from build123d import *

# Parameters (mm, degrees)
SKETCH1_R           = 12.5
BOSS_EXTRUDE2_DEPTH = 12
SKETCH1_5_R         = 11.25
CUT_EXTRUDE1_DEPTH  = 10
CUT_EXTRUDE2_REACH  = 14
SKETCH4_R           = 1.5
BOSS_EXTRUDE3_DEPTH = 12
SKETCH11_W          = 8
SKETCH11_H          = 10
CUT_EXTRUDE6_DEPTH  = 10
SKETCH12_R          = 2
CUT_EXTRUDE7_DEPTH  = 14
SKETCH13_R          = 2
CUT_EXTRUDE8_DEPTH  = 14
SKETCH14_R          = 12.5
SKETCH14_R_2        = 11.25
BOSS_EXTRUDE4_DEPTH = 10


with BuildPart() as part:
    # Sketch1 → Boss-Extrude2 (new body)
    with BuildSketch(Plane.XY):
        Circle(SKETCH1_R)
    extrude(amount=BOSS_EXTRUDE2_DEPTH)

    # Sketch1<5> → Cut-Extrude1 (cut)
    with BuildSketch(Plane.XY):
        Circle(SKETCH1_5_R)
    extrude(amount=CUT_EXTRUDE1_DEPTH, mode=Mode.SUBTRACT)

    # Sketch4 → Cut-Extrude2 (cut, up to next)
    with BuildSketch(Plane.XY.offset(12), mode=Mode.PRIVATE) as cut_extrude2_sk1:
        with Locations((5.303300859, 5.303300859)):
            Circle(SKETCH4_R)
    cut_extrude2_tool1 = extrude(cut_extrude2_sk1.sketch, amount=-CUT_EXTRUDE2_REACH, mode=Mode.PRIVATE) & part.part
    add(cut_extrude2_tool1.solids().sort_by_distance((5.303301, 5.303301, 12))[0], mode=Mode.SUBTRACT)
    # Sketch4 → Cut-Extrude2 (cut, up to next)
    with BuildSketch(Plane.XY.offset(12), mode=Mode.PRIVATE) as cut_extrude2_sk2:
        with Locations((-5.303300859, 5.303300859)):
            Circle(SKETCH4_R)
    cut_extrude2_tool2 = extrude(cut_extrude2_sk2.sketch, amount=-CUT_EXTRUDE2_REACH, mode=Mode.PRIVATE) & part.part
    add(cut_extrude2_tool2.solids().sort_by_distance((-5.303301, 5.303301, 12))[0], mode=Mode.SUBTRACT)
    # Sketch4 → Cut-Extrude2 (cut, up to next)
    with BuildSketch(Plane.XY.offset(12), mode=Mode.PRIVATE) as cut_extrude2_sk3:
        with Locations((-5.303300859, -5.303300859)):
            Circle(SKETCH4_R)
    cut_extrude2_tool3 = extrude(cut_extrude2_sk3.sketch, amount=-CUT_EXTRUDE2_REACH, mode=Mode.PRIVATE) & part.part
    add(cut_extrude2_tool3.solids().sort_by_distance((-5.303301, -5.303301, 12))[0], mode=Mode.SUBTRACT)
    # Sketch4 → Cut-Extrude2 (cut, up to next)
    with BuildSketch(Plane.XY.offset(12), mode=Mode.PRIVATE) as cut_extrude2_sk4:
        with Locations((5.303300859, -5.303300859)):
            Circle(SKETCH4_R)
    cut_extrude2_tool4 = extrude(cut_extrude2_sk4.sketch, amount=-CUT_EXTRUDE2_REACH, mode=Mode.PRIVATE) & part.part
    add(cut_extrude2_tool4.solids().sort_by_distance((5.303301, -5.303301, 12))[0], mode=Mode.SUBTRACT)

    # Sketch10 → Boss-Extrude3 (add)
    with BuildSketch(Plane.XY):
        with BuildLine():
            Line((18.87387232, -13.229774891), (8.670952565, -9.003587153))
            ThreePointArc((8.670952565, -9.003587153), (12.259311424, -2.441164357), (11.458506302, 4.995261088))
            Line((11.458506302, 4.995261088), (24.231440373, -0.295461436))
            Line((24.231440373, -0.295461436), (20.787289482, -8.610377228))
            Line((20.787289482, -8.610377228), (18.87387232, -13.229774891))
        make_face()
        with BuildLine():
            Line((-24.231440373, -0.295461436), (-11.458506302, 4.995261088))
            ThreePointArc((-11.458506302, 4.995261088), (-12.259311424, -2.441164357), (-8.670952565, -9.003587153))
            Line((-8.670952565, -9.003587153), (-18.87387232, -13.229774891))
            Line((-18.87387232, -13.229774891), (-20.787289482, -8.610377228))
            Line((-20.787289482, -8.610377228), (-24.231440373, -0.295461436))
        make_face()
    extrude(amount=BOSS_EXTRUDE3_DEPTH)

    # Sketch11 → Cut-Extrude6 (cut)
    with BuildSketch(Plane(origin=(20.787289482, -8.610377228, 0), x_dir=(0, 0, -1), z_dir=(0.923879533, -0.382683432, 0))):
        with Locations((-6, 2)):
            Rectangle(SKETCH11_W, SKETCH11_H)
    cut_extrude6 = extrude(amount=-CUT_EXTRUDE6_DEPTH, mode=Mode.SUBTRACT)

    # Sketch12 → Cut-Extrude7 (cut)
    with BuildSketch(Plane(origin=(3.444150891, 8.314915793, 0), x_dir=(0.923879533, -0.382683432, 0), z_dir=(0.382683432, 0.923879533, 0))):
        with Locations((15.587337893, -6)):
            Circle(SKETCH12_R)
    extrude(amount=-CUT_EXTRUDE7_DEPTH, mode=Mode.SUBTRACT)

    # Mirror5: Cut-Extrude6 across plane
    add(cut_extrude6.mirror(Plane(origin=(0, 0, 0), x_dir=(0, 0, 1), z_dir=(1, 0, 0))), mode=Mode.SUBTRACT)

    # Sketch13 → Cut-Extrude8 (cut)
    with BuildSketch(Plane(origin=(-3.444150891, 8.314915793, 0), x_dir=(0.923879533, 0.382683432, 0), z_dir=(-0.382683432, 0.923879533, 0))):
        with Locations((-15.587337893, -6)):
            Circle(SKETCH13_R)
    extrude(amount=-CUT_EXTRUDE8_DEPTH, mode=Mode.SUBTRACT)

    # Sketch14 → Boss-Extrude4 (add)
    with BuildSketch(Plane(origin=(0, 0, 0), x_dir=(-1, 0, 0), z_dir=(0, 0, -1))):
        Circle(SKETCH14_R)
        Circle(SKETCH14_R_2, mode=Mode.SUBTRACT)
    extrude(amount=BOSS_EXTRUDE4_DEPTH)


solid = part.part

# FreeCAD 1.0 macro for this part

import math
import FreeCAD as App
import Part
import Sketcher
Q = App.Units.Quantity

doc = App.newDocument("Part")
params = doc.addObject("Spreadsheet::Sheet", "Params")
for row, (alias, value) in enumerate([
    ("sketch1_diameter", "25 mm"),
    ("pad1_length", "12 mm"),
    ("sketch2_diameter", "22.5 mm"),
    ("pocket1_length", "10 mm"),
    ("sketch3_diameter", "3 mm"),
    ("sketch4_diameter", "3 mm"),
    ("sketch5_diameter", "3 mm"),
    ("sketch6_diameter", "3 mm"),
    ("sketch7_radius", "12.5 mm"),
    ("sketch7_length", "5 mm"),
    ("sketch7_length2", "9 mm"),
    ("pad2_length", "12 mm"),
    ("sketch8_width", "8 mm"),
    ("sketch8_height", "10 mm"),
    ("pocket6_length", "10 mm"),
    ("sketch9_diameter", "4 mm"),
    ("pocket7_length", "14 mm"),
    ("sketch10_diameter", "4 mm"),
    ("pocket8_length", "14 mm"),
    ("sketch11_diameter", "25 mm"),
    ("sketch11_diameter2", "22.5 mm"),
    ("pad3_length", "10 mm"),
], start=1):
    params.set(f"A{row}", alias)
    params.set(f"B{row}", "=" + value)
    params.setAlias(f"B{row}", alias)

body = doc.addObject("PartDesign::Body", "Body")

sketch1 = body.newObject("Sketcher::SketchObject", "Sketch")
sketch1.AttachmentSupport = (doc.getObject("XY_Plane"), [""])
sketch1.MapMode = "FlatFace"
sketch1.addGeometry(Part.Circle(App.Vector(0, 0, 0), App.Vector(0, 0, 1), 12), False)
sketch1.addConstraint([
    Sketcher.Constraint("Coincident", 0, 3, -1, 1),
    Sketcher.Constraint("Diameter", 0, 25.0),
])
sketch1.setExpression("Constraints[1]", "Params.sketch1_diameter")
pad1 = body.newObject("PartDesign::Pad", "Pad")
pad1.Profile = sketch1
pad1.setExpression("Length", "Params.pad1_length")

sketch2 = body.newObject("Sketcher::SketchObject", "Sketch001")
sketch2.AttachmentSupport = (doc.getObject("XY_Plane"), [""])
sketch2.MapMode = "FlatFace"
sketch2.addGeometry(Part.Circle(App.Vector(0, 0, 0), App.Vector(0, 0, 1), 11), False)
sketch2.addConstraint([
    Sketcher.Constraint("Coincident", 0, 3, -1, 1),
    Sketcher.Constraint("Diameter", 0, 22.5),
])
sketch2.setExpression("Constraints[1]", "Params.sketch2_diameter")
pocket1 = body.newObject("PartDesign::Pocket", "Pocket")
pocket1.Profile = sketch2
pocket1.setExpression("Length", "Params.pocket1_length")
pocket1.Reversed = True

sketch3 = body.newObject("Sketcher::SketchObject", "Sketch002")
sketch3.AttachmentSupport = (doc.getObject("XY_Plane"), [""])
sketch3.MapMode = "FlatFace"
sketch3.AttachmentOffset = App.Placement(App.Vector(0, 0, 12), App.Rotation())
sketch3.addGeometry(Part.Circle(App.Vector(5.3, 5.3, 0), App.Vector(0, 0, 1), 1.5), False)
sketch3.addConstraint([
    Sketcher.Constraint("Diameter", 0, 3.0),
    Sketcher.Constraint("DistanceX", -1, 1, 0, 3, 5.303301),
    Sketcher.Constraint("DistanceY", -1, 1, 0, 3, 5.303301),
])
sketch3.setExpression("Constraints[0]", "Params.sketch3_diameter")
pocket2 = body.newObject("PartDesign::Pocket", "Pocket001")
pocket2.Profile = sketch3
pocket2.Type = "UpToFirst"

sketch4 = body.newObject("Sketcher::SketchObject", "Sketch003")
sketch4.AttachmentSupport = (doc.getObject("XY_Plane"), [""])
sketch4.MapMode = "FlatFace"
sketch4.AttachmentOffset = App.Placement(App.Vector(0, 0, 12), App.Rotation())
sketch4.addGeometry(Part.Circle(App.Vector(-5.3, 5.3, 0), App.Vector(0, 0, 1), 1.5), False)
sketch4.addConstraint([
    Sketcher.Constraint("Diameter", 0, 3.0),
    Sketcher.Constraint("DistanceX", 0, 3, -1, 1, 5.303301),
    Sketcher.Constraint("DistanceY", -1, 1, 0, 3, 5.303301),
])
sketch4.setExpression("Constraints[0]", "Params.sketch4_diameter")
pocket3 = body.newObject("PartDesign::Pocket", "Pocket002")
pocket3.Profile = sketch4
pocket3.Type = "UpToFirst"

sketch5 = body.newObject("Sketcher::SketchObject", "Sketch004")
sketch5.AttachmentSupport = (doc.getObject("XY_Plane"), [""])
sketch5.MapMode = "FlatFace"
sketch5.AttachmentOffset = App.Placement(App.Vector(0, 0, 12), App.Rotation())
sketch5.addGeometry(Part.Circle(App.Vector(-5.3, -5.3, 0), App.Vector(0, 0, 1), 1.5), False)
sketch5.addConstraint([
    Sketcher.Constraint("Diameter", 0, 3.0),
    Sketcher.Constraint("DistanceX", 0, 3, -1, 1, 5.303301),
    Sketcher.Constraint("DistanceY", 0, 3, -1, 1, 5.303301),
])
sketch5.setExpression("Constraints[0]", "Params.sketch5_diameter")
pocket4 = body.newObject("PartDesign::Pocket", "Pocket003")
pocket4.Profile = sketch5
pocket4.Type = "UpToFirst"

sketch6 = body.newObject("Sketcher::SketchObject", "Sketch005")
sketch6.AttachmentSupport = (doc.getObject("XY_Plane"), [""])
sketch6.MapMode = "FlatFace"
sketch6.AttachmentOffset = App.Placement(App.Vector(0, 0, 12), App.Rotation())
sketch6.addGeometry(Part.Circle(App.Vector(5.3, -5.3, 0), App.Vector(0, 0, 1), 1.5), False)
sketch6.addConstraint([
    Sketcher.Constraint("Diameter", 0, 3.0),
    Sketcher.Constraint("DistanceX", -1, 1, 0, 3, 5.303301),
    Sketcher.Constraint("DistanceY", 0, 3, -1, 1, 5.303301),
])
sketch6.setExpression("Constraints[0]", "Params.sketch6_diameter")
pocket5 = body.newObject("PartDesign::Pocket", "Pocket004")
pocket5.Profile = sketch6
pocket5.Type = "UpToFirst"

sketch7 = body.newObject("Sketcher::SketchObject", "Sketch006")
sketch7.AttachmentSupport = (doc.getObject("XY_Plane"), [""])
sketch7.MapMode = "FlatFace"
sketch7.addGeometry([
    Part.LineSegment(App.Vector(9, -9, 0), App.Vector(19, -13, 0)),
    Part.LineSegment(App.Vector(19, -13, 0), App.Vector(21, -9, 0)),
    Part.LineSegment(App.Vector(21, -9, 0), App.Vector(24, 0, 0)),
    Part.LineSegment(App.Vector(24, 0, 0), App.Vector(11, 5, 0)),
    Part.ArcOfCircle(Part.Circle(App.Vector(0, 0, 0), App.Vector(0, 0, 1), 12), math.radians(-46), math.radians(24)),
    Part.LineSegment(App.Vector(-11, 5, 0), App.Vector(-24, 0, 0)),
    Part.LineSegment(App.Vector(-24, 0, 0), App.Vector(-21, -9, 0)),
    Part.LineSegment(App.Vector(-21, -9, 0), App.Vector(-19, -13, 0)),
    Part.LineSegment(App.Vector(-19, -13, 0), App.Vector(-9, -9, 0)),
    Part.ArcOfCircle(Part.Circle(App.Vector(0, 0, 0), App.Vector(0, 0, 1), 12), math.radians(156), math.radians(226)),
], False)
sketch7.addConstraint([
    Sketcher.Constraint("Coincident", 0, 2, 1, 1),
    Sketcher.Constraint("Coincident", 1, 2, 2, 1),
    Sketcher.Constraint("Coincident", 2, 2, 3, 1),
    Sketcher.Constraint("Coincident", 3, 2, 4, 2),
    Sketcher.Constraint("Coincident", 4, 1, 0, 1),
    Sketcher.Constraint("Coincident", 5, 2, 6, 1),
    Sketcher.Constraint("Coincident", 6, 2, 7, 1),
    Sketcher.Constraint("Coincident", 7, 2, 8, 1),
    Sketcher.Constraint("Coincident", 8, 2, 9, 2),
    Sketcher.Constraint("Coincident", 9, 1, 5, 1),
    Sketcher.Constraint("Coincident", 4, 3, -1, 1),
    Sketcher.Constraint("Coincident", 9, 3, -1, 1),
    Sketcher.Constraint("Equal", 4, 9),
    Sketcher.Constraint("Symmetric", 2, 2, 5, 2, -2),
    Sketcher.Constraint("Symmetric", 1, 2, 6, 2, -2),
    Sketcher.Constraint("Symmetric", 0, 2, 7, 2, -2),
    Sketcher.Constraint("Perpendicular", 0, 1),
    Sketcher.Constraint("Parallel", 1, 2),
    Sketcher.Constraint("Perpendicular", 2, 3),
    Sketcher.Constraint("Perpendicular", 5, 6),
    Sketcher.Constraint("Perpendicular", 7, 8),
    Sketcher.Constraint("Radius", 4, 12.5),
    Sketcher.Constraint("Distance", 1, 5.0),
    Sketcher.Constraint("Distance", 2, 9.0),
    Sketcher.Constraint("Angle", 0, Q("-22.5 deg")),
    Sketcher.Constraint("Distance", 0, 11.043561),
    Sketcher.Constraint("DistanceX", -1, 1, 1, 2, 20.787289),
])
sketch7.setExpression("Constraints[21]", "Params.sketch7_radius")
sketch7.setExpression("Constraints[22]", "Params.sketch7_length")
sketch7.setExpression("Constraints[23]", "Params.sketch7_length2")
pad2 = body.newObject("PartDesign::Pad", "Pad001")
pad2.Profile = sketch7
pad2.setExpression("Length", "Params.pad2_length")

sketch8 = body.newObject("Sketcher::SketchObject", "Sketch007")
sketch8.Placement = App.Placement(App.Vector(20.787289, -8.610377, 0), App.Rotation(App.Vector(0, 0, -1), App.Vector(0.382683432, 0.923879533, 0), App.Vector(0.923879533, -0.382683432, 0), "ZXY"))
sketch8.addGeometry([
    Part.LineSegment(App.Vector(-10, 7, 0), App.Vector(-10, -3, 0)),
    Part.LineSegment(App.Vector(-10, -3, 0), App.Vector(-2, -3, 0)),
    Part.LineSegment(App.Vector(-2, -3, 0), App.Vector(-2, 7, 0)),
    Part.LineSegment(App.Vector(-2, 7, 0), App.Vector(-10, 7, 0)),
], False)
sketch8.addConstraint([
    Sketcher.Constraint("Coincident", 0, 2, 1, 1),
    Sketcher.Constraint("Coincident", 1, 2, 2, 1),
    Sketcher.Constraint("Coincident", 2, 2, 3, 1),
    Sketcher.Constraint("Coincident", 3, 2, 0, 1),
    Sketcher.Constraint("Vertical", 0),
    Sketcher.Constraint("Horizontal", 1),
    Sketcher.Constraint("Vertical", 2),
    Sketcher.Constraint("Horizontal", 3),
    Sketcher.Constraint("DistanceX", 1, 1, 1, 2, 8.0),
    Sketcher.Constraint("DistanceY", 0, 2, 0, 1, 10.0),
    Sketcher.Constraint("DistanceX", 0, 2, -1, 1, 10.0),
    Sketcher.Constraint("DistanceY", 0, 2, -1, 1, 3.0),
])
sketch8.setExpression("Constraints[8]", "Params.sketch8_width")
sketch8.setExpression("Constraints[9]", "Params.sketch8_height")
pocket6 = body.newObject("PartDesign::Pocket", "Pocket005")
pocket6.Profile = sketch8
pocket6.setExpression("Length", "Params.pocket6_length")

sketch9 = body.newObject("Sketcher::SketchObject", "Sketch008")
sketch9.Placement = App.Placement(App.Vector(3.444151, 8.314916, 0), App.Rotation(App.Vector(0.923879533, -0.382683432, 0), App.Vector(0, 0, -1.000000001), App.Vector(0.382683432, 0.923879533, 0), "ZXY"))
sketch9.addGeometry(Part.Circle(App.Vector(15.6, -6, 0), App.Vector(0, 0, 1), 2), False)
sketch9.addConstraint([
    Sketcher.Constraint("Diameter", 0, 4.0),
    Sketcher.Constraint("DistanceY", 0, 3, -1, 1, 6.0),
    Sketcher.Constraint("DistanceX", -1, 1, 0, 3, 15.587338),
])
sketch9.setExpression("Constraints[0]", "Params.sketch9_diameter")
pocket7 = body.newObject("PartDesign::Pocket", "Pocket006")
pocket7.Profile = sketch9
pocket7.setExpression("Length", "Params.pocket7_length")
doc.recompute()

mirrored = body.newObject("PartDesign::Mirrored", "Mirrored")
mirrored.Originals = [pocket6]
mirrored.MirrorPlane = (doc.getObject("YZ_Plane"), [""])
body.Tip = mirrored

sketch10 = body.newObject("Sketcher::SketchObject", "Sketch009")
sketch10.Placement = App.Placement(App.Vector(-3.444151, 8.314916, 0), App.Rotation(App.Vector(0.923879533, 0.382683432, 0), App.Vector(0, 0, -1.000000001), App.Vector(-0.382683432, 0.923879533, 0), "ZXY"))
sketch10.addGeometry(Part.Circle(App.Vector(-15.6, -6, 0), App.Vector(0, 0, 1), 2), False)
sketch10.addConstraint([
    Sketcher.Constraint("Diameter", 0, 4.0),
    Sketcher.Constraint("DistanceY", 0, 3, -1, 1, 6.0),
    Sketcher.Constraint("DistanceX", 0, 3, -1, 1, 15.587338),
])
sketch10.setExpression("Constraints[0]", "Params.sketch10_diameter")
pocket8 = body.newObject("PartDesign::Pocket", "Pocket007")
pocket8.Profile = sketch10
pocket8.setExpression("Length", "Params.pocket8_length")

sketch11 = body.newObject("Sketcher::SketchObject", "Sketch010")
sketch11.AttachmentSupport = (doc.getObject("XY_Plane"), [""])
sketch11.MapMode = "FlatFace"
sketch11.addGeometry([
    Part.Circle(App.Vector(0, 0, 0), App.Vector(0, 0, 1), 12),
    Part.Circle(App.Vector(0, 0, 0), App.Vector(0, 0, 1), 11),
], False)
sketch11.addConstraint([
    Sketcher.Constraint("Coincident", 0, 3, -1, 1),
    Sketcher.Constraint("Coincident", 1, 3, -1, 1),
    Sketcher.Constraint("Diameter", 0, 25.0),
    Sketcher.Constraint("Diameter", 1, 22.5),
])
sketch11.setExpression("Constraints[2]", "Params.sketch11_diameter")
sketch11.setExpression("Constraints[3]", "Params.sketch11_diameter2")
pad3 = body.newObject("PartDesign::Pad", "Pad002")
pad3.Profile = sketch11
pad3.setExpression("Length", "Params.pad3_length")
pad3.Reversed = True

doc.recompute()
